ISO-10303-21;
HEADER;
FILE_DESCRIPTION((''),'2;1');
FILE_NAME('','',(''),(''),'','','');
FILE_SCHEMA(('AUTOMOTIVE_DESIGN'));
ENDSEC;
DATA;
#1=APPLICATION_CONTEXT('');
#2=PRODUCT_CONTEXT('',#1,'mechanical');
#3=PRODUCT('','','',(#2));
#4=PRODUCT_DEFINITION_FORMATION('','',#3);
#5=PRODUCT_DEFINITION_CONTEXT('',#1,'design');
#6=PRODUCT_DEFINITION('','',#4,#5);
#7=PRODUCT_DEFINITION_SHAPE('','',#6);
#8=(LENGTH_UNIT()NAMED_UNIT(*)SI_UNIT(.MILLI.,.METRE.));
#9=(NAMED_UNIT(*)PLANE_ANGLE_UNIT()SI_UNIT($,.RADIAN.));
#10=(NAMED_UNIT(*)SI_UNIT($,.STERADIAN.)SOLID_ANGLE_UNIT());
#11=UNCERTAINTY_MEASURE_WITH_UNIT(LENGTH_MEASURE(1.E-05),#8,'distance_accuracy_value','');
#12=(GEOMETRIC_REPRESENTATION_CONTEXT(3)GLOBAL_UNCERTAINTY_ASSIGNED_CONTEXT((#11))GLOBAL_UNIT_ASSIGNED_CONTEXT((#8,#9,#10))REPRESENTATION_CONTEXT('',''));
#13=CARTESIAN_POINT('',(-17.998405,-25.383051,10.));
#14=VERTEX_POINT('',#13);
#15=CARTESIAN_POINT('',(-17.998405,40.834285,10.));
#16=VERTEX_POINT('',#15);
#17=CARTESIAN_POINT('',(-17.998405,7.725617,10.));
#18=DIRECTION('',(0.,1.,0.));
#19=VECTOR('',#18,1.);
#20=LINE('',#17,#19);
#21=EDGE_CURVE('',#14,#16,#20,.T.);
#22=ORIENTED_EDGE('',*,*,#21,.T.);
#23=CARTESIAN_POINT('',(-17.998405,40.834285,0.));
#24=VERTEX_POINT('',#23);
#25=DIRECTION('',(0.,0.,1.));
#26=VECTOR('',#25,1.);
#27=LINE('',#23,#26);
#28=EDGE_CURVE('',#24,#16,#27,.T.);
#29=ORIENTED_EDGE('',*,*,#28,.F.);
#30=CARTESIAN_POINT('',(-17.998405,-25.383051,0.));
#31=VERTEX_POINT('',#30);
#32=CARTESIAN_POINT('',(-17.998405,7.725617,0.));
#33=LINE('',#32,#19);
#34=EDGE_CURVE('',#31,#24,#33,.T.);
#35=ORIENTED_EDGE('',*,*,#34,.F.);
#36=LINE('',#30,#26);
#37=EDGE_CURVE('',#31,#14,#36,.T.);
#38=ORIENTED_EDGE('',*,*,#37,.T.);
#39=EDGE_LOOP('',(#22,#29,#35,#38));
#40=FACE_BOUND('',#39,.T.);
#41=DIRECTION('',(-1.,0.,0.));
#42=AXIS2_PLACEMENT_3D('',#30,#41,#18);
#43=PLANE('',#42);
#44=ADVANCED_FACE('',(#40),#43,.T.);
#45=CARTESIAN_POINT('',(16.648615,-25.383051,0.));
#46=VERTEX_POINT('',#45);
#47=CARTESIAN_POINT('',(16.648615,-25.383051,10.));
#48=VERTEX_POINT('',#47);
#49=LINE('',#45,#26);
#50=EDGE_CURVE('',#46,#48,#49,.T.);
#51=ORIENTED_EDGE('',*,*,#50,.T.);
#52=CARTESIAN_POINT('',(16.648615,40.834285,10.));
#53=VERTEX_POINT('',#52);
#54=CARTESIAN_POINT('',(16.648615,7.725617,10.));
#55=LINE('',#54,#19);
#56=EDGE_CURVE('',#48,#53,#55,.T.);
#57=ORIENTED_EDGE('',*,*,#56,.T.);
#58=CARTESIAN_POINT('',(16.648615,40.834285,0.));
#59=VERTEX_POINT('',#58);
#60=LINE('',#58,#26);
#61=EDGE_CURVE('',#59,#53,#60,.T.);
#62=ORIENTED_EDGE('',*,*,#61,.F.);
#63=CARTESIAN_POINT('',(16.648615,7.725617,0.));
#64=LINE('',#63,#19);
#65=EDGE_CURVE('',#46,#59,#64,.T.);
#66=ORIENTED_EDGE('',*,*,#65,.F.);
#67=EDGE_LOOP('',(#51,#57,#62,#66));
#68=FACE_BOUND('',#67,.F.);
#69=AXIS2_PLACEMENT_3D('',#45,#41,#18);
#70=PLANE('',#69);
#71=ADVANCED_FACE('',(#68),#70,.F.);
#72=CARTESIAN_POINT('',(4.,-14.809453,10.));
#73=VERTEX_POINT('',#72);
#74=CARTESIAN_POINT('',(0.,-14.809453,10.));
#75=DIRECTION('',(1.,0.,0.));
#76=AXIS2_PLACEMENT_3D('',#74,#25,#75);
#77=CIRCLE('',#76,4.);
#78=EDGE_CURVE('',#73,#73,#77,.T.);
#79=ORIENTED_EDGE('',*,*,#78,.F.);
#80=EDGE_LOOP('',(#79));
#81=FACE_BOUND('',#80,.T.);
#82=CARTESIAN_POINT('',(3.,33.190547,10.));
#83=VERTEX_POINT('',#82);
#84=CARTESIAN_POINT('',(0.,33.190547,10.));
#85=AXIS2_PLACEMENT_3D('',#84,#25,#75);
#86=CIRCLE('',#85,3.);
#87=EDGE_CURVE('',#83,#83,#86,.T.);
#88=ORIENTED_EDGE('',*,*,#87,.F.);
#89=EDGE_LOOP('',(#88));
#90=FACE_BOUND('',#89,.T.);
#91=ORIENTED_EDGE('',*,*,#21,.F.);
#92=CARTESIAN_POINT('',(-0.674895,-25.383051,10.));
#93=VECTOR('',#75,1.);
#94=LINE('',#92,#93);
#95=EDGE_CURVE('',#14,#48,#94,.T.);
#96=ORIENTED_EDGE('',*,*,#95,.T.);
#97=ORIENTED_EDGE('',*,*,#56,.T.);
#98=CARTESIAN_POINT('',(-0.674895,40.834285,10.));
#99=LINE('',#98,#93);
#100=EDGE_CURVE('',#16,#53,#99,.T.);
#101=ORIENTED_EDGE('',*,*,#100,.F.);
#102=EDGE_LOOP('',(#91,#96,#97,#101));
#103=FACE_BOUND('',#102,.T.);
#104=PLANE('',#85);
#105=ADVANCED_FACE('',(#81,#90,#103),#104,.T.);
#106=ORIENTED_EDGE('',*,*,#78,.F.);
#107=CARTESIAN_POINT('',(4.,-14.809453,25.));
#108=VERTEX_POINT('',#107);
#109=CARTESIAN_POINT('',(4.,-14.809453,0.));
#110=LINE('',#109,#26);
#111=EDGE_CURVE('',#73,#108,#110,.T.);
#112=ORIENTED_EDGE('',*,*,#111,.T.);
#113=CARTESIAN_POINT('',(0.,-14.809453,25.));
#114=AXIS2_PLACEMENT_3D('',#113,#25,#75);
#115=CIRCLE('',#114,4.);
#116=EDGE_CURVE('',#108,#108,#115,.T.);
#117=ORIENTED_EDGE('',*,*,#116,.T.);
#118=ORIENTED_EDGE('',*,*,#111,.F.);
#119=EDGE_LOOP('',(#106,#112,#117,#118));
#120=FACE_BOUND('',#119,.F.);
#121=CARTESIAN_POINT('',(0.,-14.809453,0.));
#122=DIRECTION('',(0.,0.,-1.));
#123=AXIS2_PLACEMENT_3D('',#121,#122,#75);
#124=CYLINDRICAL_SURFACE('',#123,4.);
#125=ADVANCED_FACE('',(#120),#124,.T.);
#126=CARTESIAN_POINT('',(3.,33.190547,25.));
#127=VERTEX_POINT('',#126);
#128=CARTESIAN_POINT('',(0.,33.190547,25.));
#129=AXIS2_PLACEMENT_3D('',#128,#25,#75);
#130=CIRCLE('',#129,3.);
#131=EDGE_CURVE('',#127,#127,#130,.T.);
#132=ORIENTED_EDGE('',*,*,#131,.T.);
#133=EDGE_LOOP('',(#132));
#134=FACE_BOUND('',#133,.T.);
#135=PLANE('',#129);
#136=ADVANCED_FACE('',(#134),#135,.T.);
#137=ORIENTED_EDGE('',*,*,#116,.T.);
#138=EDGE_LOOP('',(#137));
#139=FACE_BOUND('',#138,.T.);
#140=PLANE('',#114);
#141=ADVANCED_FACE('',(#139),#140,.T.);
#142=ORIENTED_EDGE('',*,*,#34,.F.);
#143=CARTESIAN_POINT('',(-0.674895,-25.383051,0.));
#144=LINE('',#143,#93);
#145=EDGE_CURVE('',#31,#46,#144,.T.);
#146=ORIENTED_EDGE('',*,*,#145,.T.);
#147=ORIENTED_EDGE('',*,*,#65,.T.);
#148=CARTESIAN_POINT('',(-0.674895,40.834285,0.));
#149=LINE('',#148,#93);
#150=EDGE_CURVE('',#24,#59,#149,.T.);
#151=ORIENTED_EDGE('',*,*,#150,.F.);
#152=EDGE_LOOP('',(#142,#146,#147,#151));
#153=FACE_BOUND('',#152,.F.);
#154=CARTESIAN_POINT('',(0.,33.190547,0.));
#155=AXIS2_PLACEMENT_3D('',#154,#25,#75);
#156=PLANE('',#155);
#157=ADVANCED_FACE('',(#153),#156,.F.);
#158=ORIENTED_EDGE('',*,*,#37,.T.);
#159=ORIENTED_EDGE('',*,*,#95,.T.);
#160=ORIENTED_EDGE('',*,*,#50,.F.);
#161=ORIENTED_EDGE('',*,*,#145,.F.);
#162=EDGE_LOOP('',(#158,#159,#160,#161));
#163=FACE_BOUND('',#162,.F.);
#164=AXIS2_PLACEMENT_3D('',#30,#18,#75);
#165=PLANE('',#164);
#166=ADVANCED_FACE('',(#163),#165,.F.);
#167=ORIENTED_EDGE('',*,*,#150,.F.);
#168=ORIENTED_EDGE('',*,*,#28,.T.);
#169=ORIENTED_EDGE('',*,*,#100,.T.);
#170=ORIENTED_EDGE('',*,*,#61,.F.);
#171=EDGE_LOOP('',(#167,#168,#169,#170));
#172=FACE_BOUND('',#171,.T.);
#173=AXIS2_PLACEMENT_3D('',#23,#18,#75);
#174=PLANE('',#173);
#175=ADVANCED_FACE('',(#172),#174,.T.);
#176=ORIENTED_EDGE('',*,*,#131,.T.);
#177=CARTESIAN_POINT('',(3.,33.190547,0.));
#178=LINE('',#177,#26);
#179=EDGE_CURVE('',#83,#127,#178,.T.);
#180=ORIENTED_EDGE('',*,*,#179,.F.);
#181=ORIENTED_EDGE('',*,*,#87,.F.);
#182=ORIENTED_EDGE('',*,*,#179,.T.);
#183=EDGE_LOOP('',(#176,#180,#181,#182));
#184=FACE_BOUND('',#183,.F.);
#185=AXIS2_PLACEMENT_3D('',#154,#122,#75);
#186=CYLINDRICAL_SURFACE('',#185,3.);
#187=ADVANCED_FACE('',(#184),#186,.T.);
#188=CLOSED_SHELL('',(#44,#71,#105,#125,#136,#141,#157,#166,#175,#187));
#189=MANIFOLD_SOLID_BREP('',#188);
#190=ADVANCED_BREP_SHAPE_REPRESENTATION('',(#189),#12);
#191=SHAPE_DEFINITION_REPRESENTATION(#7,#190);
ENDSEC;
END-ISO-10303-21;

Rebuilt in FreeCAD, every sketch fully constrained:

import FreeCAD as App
import Part
import Sketcher

V = App.Vector
Q = App.Units.Quantity


def add_polygon(sketch, points):
    """Adds a closed chain of lines whose ends are joined by coincident constraints."""
    first, n = sketch.GeometryCount, len(points)
    for a, b in zip(points, points[1:] + points[:1]):
        sketch.addGeometry(Part.LineSegment(App.Vector(*a, 0), App.Vector(*b, 0)), False)
    for i in range(n):
        sketch.addConstraint(Sketcher.Constraint("Coincident", first + i, 2, first + (i + 1) % n, 1))

doc = App.newDocument("Part")
body = doc.addObject("PartDesign::Body", "Body")

sketch1 = body.newObject("Sketcher::SketchObject", "Sketch")
sketch1.AttachmentSupport = (doc.getObject("XY_Plane"), [""])
sketch1.MapMode = "FlatFace"
add_polygon(sketch1, [(-18, 40.8), (-18, -25.4), (16.6, -25.4), (16.6, 40.8)])
sketch1.addGeometry(Part.Circle(V(0, -14.8, 0), V(0, 0, 1), 4), False)
sketch1.addGeometry(Part.Circle(V(0, 33.2, 0), V(0, 0, 1), 3), False)
sketch1.addConstraint([
    Sketcher.Constraint("Vertical", 0),
    Sketcher.Constraint("Horizontal", 1),
    Sketcher.Constraint("Vertical", 2),
    Sketcher.Constraint("Horizontal", 3),
    Sketcher.Constraint("PointOnObject", 4, 3, -2),
    Sketcher.Constraint("PointOnObject", 5, 3, -2),
    Sketcher.Constraint("Diameter", 4, Q("8 mm")),
    Sketcher.Constraint("Diameter", 5, Q("6 mm")),
    Sketcher.Constraint("DistanceY", 4, 3, 5, 3, Q("48 mm")),
    Sketcher.Constraint("DistanceX", 1, 1, 1, 2, Q("34.64702 mm")),
    Sketcher.Constraint("DistanceY", 0, 2, 5, 3, Q("58.573598 mm")),
    Sketcher.Constraint("DistanceY", 0, 2, 0, 1, Q("66.217336 mm")),
    Sketcher.Constraint("DistanceY", 0, 2, -1, 1, Q("25.383051 mm")),
    Sketcher.Constraint("DistanceX", 0, 2, -1, 1, Q("17.998405 mm")),
])
pad1 = body.newObject("PartDesign::Pad", "Pad")
pad1.Profile = sketch1
pad1.Length = 10

sketch2 = body.newObject("Sketcher::SketchObject", "Sketch001")
sketch2.AttachmentSupport = (doc.getObject("XY_Plane"), [""])
sketch2.MapMode = "FlatFace"
sketch2.addGeometry([
    Part.Circle(V(0, -14.8, 0), V(0, 0, 1), 4),
    Part.Circle(V(0, 33.2, 0), V(0, 0, 1), 3),
], False)
sketch2.addConstraint([
    Sketcher.Constraint("PointOnObject", 0, 3, -2),
    Sketcher.Constraint("PointOnObject", 1, 3, -2),
    Sketcher.Constraint("Diameter", 0, Q("8 mm")),
    Sketcher.Constraint("Diameter", 1, Q("6 mm")),
    Sketcher.Constraint("DistanceY", 0, 3, 1, 3, Q("48 mm")),
    Sketcher.Constraint("DistanceY", 0, 3, -1, 1, Q("14.809453 mm")),
])
pad2 = body.newObject("PartDesign::Pad", "Pad001")
pad2.Profile = sketch2
pad2.Length = 25

doc.recompute()
